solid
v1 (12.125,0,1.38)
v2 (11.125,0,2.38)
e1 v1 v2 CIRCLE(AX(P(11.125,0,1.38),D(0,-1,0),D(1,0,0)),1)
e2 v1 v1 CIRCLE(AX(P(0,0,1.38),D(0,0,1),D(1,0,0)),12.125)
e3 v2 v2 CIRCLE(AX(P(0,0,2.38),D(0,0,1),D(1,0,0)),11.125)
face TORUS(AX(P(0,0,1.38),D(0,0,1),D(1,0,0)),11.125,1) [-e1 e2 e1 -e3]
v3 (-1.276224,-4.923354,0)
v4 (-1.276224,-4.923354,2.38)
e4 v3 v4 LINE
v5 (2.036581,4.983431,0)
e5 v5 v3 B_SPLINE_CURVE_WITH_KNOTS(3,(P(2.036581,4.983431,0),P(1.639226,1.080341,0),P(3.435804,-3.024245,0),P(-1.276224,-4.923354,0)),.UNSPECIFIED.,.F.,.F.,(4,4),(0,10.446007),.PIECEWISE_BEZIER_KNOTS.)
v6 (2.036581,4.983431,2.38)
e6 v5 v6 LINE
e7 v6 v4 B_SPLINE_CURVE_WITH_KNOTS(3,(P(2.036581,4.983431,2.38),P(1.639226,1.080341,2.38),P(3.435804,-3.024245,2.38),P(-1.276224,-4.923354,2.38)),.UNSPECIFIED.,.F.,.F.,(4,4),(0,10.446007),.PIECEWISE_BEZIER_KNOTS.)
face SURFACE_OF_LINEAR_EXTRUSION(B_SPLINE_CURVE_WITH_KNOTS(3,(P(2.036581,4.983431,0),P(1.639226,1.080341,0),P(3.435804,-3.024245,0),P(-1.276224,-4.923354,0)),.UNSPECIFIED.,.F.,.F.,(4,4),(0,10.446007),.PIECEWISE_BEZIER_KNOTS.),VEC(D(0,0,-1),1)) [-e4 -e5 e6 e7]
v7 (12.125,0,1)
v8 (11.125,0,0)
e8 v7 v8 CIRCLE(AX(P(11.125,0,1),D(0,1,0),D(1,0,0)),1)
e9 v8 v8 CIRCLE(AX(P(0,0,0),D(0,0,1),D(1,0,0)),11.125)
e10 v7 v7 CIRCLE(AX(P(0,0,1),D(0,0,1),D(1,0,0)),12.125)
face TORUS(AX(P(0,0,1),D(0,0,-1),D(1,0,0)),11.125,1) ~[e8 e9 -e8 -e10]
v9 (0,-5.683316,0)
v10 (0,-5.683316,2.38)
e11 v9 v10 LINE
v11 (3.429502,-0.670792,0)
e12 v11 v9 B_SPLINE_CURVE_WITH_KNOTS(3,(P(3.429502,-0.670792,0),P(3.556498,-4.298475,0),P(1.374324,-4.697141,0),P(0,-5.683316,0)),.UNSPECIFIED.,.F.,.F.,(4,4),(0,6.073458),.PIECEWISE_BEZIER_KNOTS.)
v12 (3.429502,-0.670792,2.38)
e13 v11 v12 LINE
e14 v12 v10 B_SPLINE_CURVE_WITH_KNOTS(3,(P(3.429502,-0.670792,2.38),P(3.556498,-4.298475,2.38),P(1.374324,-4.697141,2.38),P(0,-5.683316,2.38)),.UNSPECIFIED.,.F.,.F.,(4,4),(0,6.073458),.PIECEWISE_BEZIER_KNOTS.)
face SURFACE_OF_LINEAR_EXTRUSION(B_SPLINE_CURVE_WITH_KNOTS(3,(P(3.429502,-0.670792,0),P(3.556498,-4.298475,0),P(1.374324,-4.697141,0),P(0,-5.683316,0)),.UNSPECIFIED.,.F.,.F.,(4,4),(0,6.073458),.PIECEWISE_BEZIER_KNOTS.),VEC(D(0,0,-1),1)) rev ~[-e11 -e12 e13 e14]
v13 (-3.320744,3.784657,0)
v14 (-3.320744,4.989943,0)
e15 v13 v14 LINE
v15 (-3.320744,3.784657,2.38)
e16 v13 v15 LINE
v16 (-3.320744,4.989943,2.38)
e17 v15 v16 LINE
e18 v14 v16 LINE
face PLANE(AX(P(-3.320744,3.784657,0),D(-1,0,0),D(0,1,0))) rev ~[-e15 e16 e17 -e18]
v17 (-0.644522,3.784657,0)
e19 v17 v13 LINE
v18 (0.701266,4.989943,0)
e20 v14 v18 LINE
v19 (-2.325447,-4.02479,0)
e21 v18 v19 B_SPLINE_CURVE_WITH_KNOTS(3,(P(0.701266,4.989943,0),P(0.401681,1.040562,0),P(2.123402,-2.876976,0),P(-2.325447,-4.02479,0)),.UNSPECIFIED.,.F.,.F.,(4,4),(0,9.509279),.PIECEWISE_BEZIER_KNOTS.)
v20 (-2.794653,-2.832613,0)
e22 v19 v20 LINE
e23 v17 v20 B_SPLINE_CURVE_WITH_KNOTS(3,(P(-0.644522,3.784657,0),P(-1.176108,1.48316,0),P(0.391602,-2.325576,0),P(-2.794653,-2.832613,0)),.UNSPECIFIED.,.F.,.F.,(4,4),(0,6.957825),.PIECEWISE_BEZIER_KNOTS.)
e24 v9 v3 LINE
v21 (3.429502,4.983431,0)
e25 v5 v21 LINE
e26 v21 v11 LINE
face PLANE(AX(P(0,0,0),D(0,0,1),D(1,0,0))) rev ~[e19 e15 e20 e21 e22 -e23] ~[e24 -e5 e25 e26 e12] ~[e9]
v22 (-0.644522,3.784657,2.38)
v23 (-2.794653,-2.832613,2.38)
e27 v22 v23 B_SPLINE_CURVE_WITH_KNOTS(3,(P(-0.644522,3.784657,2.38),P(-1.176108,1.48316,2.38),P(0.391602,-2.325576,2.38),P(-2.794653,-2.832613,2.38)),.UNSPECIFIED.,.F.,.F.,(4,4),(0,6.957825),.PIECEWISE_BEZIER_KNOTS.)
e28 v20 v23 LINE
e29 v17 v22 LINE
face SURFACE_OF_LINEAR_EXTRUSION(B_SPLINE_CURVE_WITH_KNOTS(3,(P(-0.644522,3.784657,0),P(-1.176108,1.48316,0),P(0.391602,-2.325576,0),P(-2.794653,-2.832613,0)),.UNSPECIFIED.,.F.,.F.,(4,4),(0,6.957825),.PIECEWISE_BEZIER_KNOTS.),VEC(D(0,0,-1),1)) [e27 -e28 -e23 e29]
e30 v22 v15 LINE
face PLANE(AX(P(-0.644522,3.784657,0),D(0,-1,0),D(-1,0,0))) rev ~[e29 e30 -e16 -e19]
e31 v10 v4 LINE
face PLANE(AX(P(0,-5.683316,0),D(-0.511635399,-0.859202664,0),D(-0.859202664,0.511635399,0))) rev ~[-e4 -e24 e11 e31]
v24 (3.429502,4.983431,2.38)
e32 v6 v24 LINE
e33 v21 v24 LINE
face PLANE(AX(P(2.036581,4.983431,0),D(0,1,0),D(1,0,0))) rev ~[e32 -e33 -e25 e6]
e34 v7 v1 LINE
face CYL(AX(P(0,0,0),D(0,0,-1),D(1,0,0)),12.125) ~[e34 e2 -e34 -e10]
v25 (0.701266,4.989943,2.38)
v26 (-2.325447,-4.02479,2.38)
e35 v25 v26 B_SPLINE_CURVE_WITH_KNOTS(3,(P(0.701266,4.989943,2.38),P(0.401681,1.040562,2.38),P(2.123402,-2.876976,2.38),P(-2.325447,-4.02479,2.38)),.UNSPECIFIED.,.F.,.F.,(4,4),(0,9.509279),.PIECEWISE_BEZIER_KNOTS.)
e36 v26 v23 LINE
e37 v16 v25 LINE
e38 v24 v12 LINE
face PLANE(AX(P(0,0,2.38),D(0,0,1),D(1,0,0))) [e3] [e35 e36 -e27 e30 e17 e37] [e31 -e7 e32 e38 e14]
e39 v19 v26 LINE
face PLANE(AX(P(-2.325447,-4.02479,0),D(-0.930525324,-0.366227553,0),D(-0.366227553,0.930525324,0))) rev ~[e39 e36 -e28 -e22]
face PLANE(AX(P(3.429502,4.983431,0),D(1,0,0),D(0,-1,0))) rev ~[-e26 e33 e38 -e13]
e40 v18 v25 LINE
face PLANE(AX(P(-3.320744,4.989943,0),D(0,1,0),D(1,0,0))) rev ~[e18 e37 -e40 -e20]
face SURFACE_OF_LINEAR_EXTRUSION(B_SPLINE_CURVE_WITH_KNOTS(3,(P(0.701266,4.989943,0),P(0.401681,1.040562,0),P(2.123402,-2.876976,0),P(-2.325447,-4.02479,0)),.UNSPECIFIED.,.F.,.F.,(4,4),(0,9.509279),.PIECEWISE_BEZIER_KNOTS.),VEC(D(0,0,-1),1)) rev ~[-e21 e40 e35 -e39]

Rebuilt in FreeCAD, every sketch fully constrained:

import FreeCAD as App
import Part
import Sketcher
Q = App.Units.Quantity


def edges_at(feature, points):
    """Names of the edges that pass closest to the given points."""
    edges = feature.Shape.Edges
    near = lambda p: min(range(len(edges)), key=lambda i: edges[i].distToShape(Part.Vertex(*p))[0])
    return sorted({f"Edge{near(p) + 1}" for p in points})

doc = App.newDocument("Part")
body = doc.addObject("PartDesign::Body", "Body")

# Sketch on XY plane
sketch1 = body.newObject("Sketcher::SketchObject", "Sketch")
sketch1.AttachmentSupport = (doc.getObject("XY_Plane"), [""])
sketch1.MapMode = "FlatFace"
sketch1.addGeometry(Part.Circle(App.Vector(0, 0, 0), App.Vector(0, 0, 1), 12.125), False)
sketch1.addGeometry(Part.BSplineCurve([App.Vector(2.036581, 4.983431, 0), App.Vector(1.639226, 1.080341, 0), App.Vector(3.435804, -3.024245, 0), App.Vector(-1.276224, -4.923354, 0)], [4, 4], [0, 10.446007], False, 3, [1, 1, 1, 1], False), False)
sketch1.addGeometry(Part.LineSegment(App.Vector(2.036581, 4.983431, 0), App.Vector(3.429502, 4.983431, 0)), False)
sketch1.addGeometry(Part.LineSegment(App.Vector(3.429502, 4.983431, 0), App.Vector(3.429502, -0.670792, 0)), False)
sketch1.addGeometry(Part.BSplineCurve([App.Vector(3.429502, -0.670792, 0), App.Vector(3.556498, -4.298475, 0), App.Vector(1.374324, -4.697141, 0), App.Vector(0, -5.683316, 0)], [4, 4], [0, 6.073458], False, 3, [1, 1, 1, 1], False), False)
sketch1.addGeometry(Part.LineSegment(App.Vector(0, -5.683316, 0), App.Vector(-1.276224, -4.923354, 0)), False)
sketch1.addGeometry(Part.LineSegment(App.Vector(-0.644522, 3.784657, 0), App.Vector(-3.320744, 3.784657, 0)), False)
sketch1.addGeometry(Part.LineSegment(App.Vector(-3.320744, 3.784657, 0), App.Vector(-3.320744, 4.989943, 0)), False)
sketch1.addGeometry(Part.LineSegment(App.Vector(-3.320744, 4.989943, 0), App.Vector(0.701266, 4.989943, 0)), False)
sketch1.addGeometry(Part.BSplineCurve([App.Vector(0.701266, 4.989943, 0), App.Vector(0.401681, 1.040562, 0), App.Vector(2.123402, -2.876976, 0), App.Vector(-2.325447, -4.02479, 0)], [4, 4], [0, 9.509279], False, 3, [1, 1, 1, 1], False), False)
sketch1.addGeometry(Part.LineSegment(App.Vector(-2.325447, -4.02479, 0), App.Vector(-2.794653, -2.832613, 0)), False)
sketch1.addGeometry(Part.BSplineCurve([App.Vector(-0.644522, 3.784657, 0), App.Vector(-1.176108, 1.48316, 0), App.Vector(0.391602, -2.325576, 0), App.Vector(-2.794653, -2.832613, 0)], [4, 4], [0, 6.957825], False, 3, [1, 1, 1, 1], False), False)
sketch1.addConstraint(Sketcher.Constraint("Block", 1))
sketch1.addConstraint(Sketcher.Constraint("Block", 4))
sketch1.addConstraint(Sketcher.Constraint("Block", 9))
sketch1.addConstraint(Sketcher.Constraint("Block", 11))
sketch1.addConstraint(Sketcher.Constraint("Coincident", 1, 1, 2, 1))
sketch1.addConstraint(Sketcher.Constraint("Coincident", 2, 2, 3, 1))
sketch1.addConstraint(Sketcher.Constraint("Coincident", 3, 2, 4, 1))
sketch1.addConstraint(Sketcher.Constraint("Coincident", 4, 2, 5, 1))
sketch1.addConstraint(Sketcher.Constraint("Coincident", 5, 2, 1, 2))
sketch1.addConstraint(Sketcher.Constraint("Coincident", 6, 2, 7, 1))
sketch1.addConstraint(Sketcher.Constraint("Coincident", 7, 2, 8, 1))
sketch1.addConstraint(Sketcher.Constraint("Coincident", 8, 2, 9, 1))
sketch1.addConstraint(Sketcher.Constraint("Coincident", 9, 2, 10, 1))
sketch1.addConstraint(Sketcher.Constraint("Coincident", 10, 2, 11, 2))
sketch1.addConstraint(Sketcher.Constraint("Coincident", 11, 1, 6, 1))
sketch1.addConstraint(Sketcher.Constraint("Horizontal", 2))
sketch1.addConstraint(Sketcher.Constraint("Vertical", 3))
sketch1.addConstraint(Sketcher.Constraint("Horizontal", 6))
sketch1.addConstraint(Sketcher.Constraint("Vertical", 7))
sketch1.addConstraint(Sketcher.Constraint("Horizontal", 8))
sketch1.addConstraint(Sketcher.Constraint("Coincident", 0, 3, -1, 1))
sketch1.addConstraint(Sketcher.Constraint("Diameter", 0, Q("24.25 mm")))
sketch1.addConstraint(Sketcher.Constraint("DistanceX", 8, 1, 8, 2, Q("4.02201 mm")))
pad1 = body.newObject("PartDesign::Pad", "Pad")
pad1.Profile = sketch1
pad1.Length = 2.38
doc.recompute()

fillet = body.newObject("PartDesign::Fillet", "Fillet")
fillet.Base = (pad1, edges_at(pad1, [(-12.125, 0, 2.38), (-12.125, 0, 0)]))
fillet.Radius = 1

doc.recompute()
